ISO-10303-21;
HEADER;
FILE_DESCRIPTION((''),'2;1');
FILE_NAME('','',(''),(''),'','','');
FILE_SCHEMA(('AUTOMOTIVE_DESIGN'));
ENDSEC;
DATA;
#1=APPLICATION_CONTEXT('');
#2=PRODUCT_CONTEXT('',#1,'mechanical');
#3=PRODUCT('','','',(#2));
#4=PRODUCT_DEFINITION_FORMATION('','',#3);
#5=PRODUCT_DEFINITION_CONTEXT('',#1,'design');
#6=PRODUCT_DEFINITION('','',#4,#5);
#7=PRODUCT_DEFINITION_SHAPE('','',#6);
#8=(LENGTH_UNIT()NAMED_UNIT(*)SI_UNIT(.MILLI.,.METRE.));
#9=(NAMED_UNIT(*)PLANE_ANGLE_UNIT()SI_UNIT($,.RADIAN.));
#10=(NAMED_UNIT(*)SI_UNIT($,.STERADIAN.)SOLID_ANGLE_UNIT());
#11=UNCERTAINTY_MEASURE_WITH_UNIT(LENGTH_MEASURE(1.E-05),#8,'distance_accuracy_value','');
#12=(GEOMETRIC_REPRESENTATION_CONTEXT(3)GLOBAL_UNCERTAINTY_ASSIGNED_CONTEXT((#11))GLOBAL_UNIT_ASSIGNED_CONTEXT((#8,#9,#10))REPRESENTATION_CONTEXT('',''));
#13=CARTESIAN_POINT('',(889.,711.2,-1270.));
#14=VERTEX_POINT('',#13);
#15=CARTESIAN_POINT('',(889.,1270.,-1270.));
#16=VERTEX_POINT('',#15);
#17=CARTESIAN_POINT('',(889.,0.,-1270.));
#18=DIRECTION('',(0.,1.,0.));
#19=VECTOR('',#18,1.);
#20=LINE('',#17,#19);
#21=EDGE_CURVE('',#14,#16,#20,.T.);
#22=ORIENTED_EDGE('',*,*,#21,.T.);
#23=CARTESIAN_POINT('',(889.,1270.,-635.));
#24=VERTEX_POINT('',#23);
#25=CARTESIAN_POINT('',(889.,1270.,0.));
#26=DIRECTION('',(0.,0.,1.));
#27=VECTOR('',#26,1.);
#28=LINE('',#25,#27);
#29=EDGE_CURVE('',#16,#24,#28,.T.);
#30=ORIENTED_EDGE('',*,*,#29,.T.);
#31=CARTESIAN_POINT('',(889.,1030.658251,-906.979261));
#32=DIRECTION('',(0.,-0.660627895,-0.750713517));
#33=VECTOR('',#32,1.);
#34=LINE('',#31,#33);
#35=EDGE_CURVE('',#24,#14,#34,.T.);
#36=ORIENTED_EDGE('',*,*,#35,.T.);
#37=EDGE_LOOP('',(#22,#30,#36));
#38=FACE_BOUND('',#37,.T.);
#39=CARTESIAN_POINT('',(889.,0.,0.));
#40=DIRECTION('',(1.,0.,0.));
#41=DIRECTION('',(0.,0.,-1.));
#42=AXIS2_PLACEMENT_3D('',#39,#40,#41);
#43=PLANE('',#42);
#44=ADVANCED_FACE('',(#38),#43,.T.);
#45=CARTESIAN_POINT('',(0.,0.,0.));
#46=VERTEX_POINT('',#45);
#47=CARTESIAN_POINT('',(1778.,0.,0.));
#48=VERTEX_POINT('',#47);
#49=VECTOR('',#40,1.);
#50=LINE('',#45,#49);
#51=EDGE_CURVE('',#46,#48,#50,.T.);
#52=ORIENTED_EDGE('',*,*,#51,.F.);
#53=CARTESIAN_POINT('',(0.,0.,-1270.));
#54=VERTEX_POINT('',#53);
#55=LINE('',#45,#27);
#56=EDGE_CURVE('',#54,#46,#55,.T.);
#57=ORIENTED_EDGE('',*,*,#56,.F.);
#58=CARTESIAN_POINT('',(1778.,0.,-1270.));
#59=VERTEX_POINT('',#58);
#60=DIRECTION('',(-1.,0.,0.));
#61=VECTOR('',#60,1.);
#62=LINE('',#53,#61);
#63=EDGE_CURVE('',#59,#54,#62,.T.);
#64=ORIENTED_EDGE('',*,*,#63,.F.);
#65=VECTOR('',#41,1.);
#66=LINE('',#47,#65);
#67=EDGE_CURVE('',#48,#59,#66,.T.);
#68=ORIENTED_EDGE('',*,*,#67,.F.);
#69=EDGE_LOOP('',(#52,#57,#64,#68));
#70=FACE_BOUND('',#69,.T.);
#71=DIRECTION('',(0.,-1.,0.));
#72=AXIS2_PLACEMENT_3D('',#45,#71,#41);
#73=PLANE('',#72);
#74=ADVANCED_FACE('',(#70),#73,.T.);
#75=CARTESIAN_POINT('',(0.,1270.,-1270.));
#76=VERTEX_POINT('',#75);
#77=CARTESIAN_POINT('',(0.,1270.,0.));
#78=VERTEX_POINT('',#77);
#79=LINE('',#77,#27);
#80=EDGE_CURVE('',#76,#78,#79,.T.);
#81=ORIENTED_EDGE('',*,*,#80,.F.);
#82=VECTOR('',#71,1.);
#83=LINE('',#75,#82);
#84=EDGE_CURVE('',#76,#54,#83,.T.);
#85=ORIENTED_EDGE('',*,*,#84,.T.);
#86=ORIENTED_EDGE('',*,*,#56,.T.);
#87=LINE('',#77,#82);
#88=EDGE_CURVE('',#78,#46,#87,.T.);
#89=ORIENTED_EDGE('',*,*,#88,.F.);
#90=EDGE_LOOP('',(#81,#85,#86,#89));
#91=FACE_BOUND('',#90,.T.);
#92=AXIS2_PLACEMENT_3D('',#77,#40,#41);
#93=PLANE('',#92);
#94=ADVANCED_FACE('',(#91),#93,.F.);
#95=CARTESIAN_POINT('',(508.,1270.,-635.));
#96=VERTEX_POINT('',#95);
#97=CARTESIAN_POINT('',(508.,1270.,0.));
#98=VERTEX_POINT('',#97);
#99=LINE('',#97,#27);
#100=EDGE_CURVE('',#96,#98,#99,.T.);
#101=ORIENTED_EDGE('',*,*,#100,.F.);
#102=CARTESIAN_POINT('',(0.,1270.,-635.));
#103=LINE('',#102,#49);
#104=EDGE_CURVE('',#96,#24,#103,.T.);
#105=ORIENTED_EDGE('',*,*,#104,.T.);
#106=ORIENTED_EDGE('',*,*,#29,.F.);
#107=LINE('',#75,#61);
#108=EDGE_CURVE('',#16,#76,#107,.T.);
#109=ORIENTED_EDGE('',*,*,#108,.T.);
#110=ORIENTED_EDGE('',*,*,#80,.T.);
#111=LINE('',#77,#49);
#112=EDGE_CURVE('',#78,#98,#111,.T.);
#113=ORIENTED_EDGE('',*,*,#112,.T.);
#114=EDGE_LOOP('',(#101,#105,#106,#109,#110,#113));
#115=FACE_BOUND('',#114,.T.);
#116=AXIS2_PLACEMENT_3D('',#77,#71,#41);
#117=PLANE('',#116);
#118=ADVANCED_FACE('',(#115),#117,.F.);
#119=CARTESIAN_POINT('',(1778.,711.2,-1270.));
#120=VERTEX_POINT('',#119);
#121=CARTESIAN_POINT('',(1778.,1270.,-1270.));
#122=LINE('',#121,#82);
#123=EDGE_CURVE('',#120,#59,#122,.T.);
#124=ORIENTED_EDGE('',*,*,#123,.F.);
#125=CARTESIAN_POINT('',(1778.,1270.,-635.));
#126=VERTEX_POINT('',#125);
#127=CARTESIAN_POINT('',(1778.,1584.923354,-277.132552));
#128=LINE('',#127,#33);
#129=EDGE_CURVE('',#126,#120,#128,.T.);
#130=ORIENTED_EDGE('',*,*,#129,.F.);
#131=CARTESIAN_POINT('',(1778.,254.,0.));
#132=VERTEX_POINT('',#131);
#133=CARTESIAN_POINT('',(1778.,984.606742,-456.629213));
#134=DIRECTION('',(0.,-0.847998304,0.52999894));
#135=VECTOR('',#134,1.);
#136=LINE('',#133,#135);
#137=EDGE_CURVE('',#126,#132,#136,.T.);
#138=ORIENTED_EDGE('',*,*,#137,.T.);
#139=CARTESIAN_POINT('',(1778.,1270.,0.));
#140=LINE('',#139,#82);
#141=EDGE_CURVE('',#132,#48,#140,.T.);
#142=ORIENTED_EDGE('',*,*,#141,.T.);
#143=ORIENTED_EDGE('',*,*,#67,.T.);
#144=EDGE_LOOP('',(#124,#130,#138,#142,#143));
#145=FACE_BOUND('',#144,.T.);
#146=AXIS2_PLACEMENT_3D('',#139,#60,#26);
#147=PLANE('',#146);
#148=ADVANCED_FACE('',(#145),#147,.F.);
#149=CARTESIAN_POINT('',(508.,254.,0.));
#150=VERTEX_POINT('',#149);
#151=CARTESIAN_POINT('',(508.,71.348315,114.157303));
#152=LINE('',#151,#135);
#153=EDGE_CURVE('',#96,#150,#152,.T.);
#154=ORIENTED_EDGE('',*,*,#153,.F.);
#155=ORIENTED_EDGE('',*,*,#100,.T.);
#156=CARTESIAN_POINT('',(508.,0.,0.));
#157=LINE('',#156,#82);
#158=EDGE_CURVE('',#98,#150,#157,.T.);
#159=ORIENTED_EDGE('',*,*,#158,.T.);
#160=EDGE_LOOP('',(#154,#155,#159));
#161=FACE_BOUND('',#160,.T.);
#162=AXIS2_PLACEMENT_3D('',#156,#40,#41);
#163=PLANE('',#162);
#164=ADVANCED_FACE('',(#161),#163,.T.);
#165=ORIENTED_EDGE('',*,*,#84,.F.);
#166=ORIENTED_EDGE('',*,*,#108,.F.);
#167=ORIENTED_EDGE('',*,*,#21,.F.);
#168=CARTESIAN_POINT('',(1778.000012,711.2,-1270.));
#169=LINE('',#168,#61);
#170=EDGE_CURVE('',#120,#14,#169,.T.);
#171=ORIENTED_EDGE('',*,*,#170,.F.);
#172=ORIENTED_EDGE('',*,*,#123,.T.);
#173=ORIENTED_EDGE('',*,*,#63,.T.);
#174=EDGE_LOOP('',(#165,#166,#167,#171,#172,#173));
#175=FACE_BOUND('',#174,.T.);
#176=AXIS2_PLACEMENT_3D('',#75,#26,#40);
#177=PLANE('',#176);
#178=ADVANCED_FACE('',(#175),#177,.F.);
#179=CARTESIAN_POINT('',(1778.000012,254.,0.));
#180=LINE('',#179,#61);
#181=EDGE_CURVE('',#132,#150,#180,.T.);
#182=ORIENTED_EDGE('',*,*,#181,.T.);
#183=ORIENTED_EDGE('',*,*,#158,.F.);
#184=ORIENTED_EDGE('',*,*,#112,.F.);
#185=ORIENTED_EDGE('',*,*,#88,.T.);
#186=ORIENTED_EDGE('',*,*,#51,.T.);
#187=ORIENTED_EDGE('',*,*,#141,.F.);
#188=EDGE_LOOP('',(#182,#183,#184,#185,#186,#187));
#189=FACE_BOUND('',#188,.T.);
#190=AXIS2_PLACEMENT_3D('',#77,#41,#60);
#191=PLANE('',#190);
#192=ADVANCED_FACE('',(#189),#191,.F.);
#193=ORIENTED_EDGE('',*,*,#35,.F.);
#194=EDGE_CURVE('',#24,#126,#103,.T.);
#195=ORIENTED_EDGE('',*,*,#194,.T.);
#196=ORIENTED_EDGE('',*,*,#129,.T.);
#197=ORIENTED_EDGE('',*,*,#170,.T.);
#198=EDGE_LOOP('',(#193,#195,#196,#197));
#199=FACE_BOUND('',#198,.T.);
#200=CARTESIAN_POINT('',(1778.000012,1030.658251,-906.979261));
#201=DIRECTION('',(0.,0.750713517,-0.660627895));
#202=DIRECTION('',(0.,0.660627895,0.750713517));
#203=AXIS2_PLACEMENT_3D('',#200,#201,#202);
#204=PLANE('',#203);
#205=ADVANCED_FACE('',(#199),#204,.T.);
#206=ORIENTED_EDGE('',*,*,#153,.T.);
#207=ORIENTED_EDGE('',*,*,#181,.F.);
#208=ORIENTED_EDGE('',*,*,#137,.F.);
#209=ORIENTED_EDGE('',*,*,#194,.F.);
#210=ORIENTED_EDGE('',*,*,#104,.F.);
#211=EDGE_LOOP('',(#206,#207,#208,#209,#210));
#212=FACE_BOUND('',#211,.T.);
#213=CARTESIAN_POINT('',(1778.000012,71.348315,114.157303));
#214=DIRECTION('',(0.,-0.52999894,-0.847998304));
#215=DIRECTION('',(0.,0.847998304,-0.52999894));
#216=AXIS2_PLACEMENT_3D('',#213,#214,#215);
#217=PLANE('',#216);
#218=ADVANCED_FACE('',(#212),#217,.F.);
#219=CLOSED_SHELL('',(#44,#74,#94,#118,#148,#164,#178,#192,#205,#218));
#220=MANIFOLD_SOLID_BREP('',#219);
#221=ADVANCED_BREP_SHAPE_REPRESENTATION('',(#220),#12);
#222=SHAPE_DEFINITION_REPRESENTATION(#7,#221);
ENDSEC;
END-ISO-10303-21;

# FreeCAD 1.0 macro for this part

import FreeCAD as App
import Part
import Sketcher
Q = App.Units.Quantity


def add_polygon(sketch, points):
    """Adds a closed chain of lines whose ends are joined by coincident constraints."""
    first, n = sketch.GeometryCount, len(points)
    for a, b in zip(points, points[1:] + points[:1]):
        sketch.addGeometry(Part.LineSegment(App.Vector(*a, 0), App.Vector(*b, 0)), False)
    for i in range(n):
        sketch.addConstraint(Sketcher.Constraint("Coincident", first + i, 2, first + (i + 1) % n, 1))

doc = App.newDocument("Part")
params = doc.addObject("Spreadsheet::Sheet", "Params")
for row, (alias, value) in enumerate([
    ("sketch1_width", "70 in"),
    ("sketch1_height", "50 in"),
    ("pad1_length", "50 in"),
    ("sketch2_width", "40 in"),
    ("sketch2_height", "25 in"),
    ("pocket1_length", "2528.26809 mm"),
    ("pocket1_length2", "50 in"),
    ("sketch3_width", "22 in"),
    ("sketch3_height", "25 in"),
    ("pocket2_length", "2528.26809 mm"),
    ("pocket2_length2", "35 in"),
], start=1):
    params.set(f"A{row}", alias)
    params.set(f"B{row}", "=" + value)
    params.setAlias(f"B{row}", alias)

body = doc.addObject("PartDesign::Body", "Body")

sketch1 = body.newObject("Sketcher::SketchObject", "Sketch")
sketch1.AttachmentSupport = (doc.getObject("XZ_Plane"), [""])
sketch1.MapMode = "FlatFace"
add_polygon(sketch1, [(0, -1270), (0, 0), (1778, 0), (1778, -1270)])
sketch1.addConstraint(Sketcher.Constraint("Vertical", 0))
sketch1.addConstraint(Sketcher.Constraint("Horizontal", 1))
sketch1.addConstraint(Sketcher.Constraint("Vertical", 2))
sketch1.addConstraint(Sketcher.Constraint("Horizontal", 3))
sketch1.addConstraint(Sketcher.Constraint("Coincident", 0, 2, -1, 1))
sketch1.addConstraint(Sketcher.Constraint("DistanceX", 1, 1, 1, 2, Q("70 in")))
sketch1.addConstraint(Sketcher.Constraint("DistanceY", 0, 1, 0, 2, Q("50 in")))
sketch1.setExpression("Constraints[9]", "Params.sketch1_width")
sketch1.setExpression("Constraints[10]", "Params.sketch1_height")
pad1 = body.newObject("PartDesign::Pad", "Pad")
pad1.Profile = sketch1
pad1.setExpression("Length", "Params.pad1_length")
pad1.Reversed = True

sketch2 = body.newObject("Sketcher::SketchObject", "Sketch001")
sketch2.AttachmentSupport = (doc.getObject("YZ_Plane"), [""])
sketch2.MapMode = "FlatFace"
sketch2.AttachmentOffset = App.Placement(App.Vector(0, 0, 70 * 25.4), App.Rotation())
add_polygon(sketch2, [(254, 0), (1270, -635), (1270, 0)])
sketch2.addConstraint(Sketcher.Constraint("Vertical", 1))
sketch2.addConstraint(Sketcher.Constraint("Horizontal", 2))
sketch2.addConstraint(Sketcher.Constraint("PointOnObject", 1, 2, -1))
sketch2.addConstraint(Sketcher.Constraint("DistanceX", 2, 2, 2, 1, Q("40 in")))
sketch2.addConstraint(Sketcher.Constraint("DistanceY", 1, 1, 1, 2, Q("25 in")))
sketch2.addConstraint(Sketcher.Constraint("DistanceX", -1, 1, 0, 2, Q("50 in")))
sketch2.setExpression("Constraints[6]", "Params.sketch2_width")
sketch2.setExpression("Constraints[7]", "Params.sketch2_height")
pocket1 = body.newObject("PartDesign::Pocket", "Pocket")
pocket1.Profile = sketch2
pocket1.Type = "TwoLengths"
pocket1.setExpression("Length", "Params.pocket1_length")
pocket1.setExpression("Length2", "Params.pocket1_length2")
pocket1.Reversed = True

sketch3 = body.newObject("Sketcher::SketchObject", "Sketch002")
sketch3.AttachmentSupport = (doc.getObject("YZ_Plane"), [""])
sketch3.MapMode = "FlatFace"
sketch3.AttachmentOffset = App.Placement(App.Vector(0, 0, 70 * 25.4), App.Rotation())
add_polygon(sketch3, [(1270, -1270), (1270, -635), (711, -1270)])
sketch3.addConstraint(Sketcher.Constraint("Vertical", 0))
sketch3.addConstraint(Sketcher.Constraint("Horizontal", 2))
sketch3.addConstraint(Sketcher.Constraint("DistanceX", 2, 1, 2, 2, Q("22 in")))
sketch3.addConstraint(Sketcher.Constraint("DistanceY", 0, 1, 0, 2, Q("25 in")))
sketch3.addConstraint(Sketcher.Constraint("DistanceX", -1, 1, 0, 2, Q("50 in")))
sketch3.addConstraint(Sketcher.Constraint("DistanceY", 0, 2, -1, 1, Q("25 in")))
sketch3.setExpression("Constraints[5]", "Params.sketch3_width")
sketch3.setExpression("Constraints[6]", "Params.sketch3_height")
pocket2 = body.newObject("PartDesign::Pocket", "Pocket001")
pocket2.Profile = sketch3
pocket2.Type = "TwoLengths"
pocket2.setExpression("Length", "Params.pocket2_length")
pocket2.setExpression("Length2", "Params.pocket2_length2")
pocket2.Reversed = True

doc.recompute()
